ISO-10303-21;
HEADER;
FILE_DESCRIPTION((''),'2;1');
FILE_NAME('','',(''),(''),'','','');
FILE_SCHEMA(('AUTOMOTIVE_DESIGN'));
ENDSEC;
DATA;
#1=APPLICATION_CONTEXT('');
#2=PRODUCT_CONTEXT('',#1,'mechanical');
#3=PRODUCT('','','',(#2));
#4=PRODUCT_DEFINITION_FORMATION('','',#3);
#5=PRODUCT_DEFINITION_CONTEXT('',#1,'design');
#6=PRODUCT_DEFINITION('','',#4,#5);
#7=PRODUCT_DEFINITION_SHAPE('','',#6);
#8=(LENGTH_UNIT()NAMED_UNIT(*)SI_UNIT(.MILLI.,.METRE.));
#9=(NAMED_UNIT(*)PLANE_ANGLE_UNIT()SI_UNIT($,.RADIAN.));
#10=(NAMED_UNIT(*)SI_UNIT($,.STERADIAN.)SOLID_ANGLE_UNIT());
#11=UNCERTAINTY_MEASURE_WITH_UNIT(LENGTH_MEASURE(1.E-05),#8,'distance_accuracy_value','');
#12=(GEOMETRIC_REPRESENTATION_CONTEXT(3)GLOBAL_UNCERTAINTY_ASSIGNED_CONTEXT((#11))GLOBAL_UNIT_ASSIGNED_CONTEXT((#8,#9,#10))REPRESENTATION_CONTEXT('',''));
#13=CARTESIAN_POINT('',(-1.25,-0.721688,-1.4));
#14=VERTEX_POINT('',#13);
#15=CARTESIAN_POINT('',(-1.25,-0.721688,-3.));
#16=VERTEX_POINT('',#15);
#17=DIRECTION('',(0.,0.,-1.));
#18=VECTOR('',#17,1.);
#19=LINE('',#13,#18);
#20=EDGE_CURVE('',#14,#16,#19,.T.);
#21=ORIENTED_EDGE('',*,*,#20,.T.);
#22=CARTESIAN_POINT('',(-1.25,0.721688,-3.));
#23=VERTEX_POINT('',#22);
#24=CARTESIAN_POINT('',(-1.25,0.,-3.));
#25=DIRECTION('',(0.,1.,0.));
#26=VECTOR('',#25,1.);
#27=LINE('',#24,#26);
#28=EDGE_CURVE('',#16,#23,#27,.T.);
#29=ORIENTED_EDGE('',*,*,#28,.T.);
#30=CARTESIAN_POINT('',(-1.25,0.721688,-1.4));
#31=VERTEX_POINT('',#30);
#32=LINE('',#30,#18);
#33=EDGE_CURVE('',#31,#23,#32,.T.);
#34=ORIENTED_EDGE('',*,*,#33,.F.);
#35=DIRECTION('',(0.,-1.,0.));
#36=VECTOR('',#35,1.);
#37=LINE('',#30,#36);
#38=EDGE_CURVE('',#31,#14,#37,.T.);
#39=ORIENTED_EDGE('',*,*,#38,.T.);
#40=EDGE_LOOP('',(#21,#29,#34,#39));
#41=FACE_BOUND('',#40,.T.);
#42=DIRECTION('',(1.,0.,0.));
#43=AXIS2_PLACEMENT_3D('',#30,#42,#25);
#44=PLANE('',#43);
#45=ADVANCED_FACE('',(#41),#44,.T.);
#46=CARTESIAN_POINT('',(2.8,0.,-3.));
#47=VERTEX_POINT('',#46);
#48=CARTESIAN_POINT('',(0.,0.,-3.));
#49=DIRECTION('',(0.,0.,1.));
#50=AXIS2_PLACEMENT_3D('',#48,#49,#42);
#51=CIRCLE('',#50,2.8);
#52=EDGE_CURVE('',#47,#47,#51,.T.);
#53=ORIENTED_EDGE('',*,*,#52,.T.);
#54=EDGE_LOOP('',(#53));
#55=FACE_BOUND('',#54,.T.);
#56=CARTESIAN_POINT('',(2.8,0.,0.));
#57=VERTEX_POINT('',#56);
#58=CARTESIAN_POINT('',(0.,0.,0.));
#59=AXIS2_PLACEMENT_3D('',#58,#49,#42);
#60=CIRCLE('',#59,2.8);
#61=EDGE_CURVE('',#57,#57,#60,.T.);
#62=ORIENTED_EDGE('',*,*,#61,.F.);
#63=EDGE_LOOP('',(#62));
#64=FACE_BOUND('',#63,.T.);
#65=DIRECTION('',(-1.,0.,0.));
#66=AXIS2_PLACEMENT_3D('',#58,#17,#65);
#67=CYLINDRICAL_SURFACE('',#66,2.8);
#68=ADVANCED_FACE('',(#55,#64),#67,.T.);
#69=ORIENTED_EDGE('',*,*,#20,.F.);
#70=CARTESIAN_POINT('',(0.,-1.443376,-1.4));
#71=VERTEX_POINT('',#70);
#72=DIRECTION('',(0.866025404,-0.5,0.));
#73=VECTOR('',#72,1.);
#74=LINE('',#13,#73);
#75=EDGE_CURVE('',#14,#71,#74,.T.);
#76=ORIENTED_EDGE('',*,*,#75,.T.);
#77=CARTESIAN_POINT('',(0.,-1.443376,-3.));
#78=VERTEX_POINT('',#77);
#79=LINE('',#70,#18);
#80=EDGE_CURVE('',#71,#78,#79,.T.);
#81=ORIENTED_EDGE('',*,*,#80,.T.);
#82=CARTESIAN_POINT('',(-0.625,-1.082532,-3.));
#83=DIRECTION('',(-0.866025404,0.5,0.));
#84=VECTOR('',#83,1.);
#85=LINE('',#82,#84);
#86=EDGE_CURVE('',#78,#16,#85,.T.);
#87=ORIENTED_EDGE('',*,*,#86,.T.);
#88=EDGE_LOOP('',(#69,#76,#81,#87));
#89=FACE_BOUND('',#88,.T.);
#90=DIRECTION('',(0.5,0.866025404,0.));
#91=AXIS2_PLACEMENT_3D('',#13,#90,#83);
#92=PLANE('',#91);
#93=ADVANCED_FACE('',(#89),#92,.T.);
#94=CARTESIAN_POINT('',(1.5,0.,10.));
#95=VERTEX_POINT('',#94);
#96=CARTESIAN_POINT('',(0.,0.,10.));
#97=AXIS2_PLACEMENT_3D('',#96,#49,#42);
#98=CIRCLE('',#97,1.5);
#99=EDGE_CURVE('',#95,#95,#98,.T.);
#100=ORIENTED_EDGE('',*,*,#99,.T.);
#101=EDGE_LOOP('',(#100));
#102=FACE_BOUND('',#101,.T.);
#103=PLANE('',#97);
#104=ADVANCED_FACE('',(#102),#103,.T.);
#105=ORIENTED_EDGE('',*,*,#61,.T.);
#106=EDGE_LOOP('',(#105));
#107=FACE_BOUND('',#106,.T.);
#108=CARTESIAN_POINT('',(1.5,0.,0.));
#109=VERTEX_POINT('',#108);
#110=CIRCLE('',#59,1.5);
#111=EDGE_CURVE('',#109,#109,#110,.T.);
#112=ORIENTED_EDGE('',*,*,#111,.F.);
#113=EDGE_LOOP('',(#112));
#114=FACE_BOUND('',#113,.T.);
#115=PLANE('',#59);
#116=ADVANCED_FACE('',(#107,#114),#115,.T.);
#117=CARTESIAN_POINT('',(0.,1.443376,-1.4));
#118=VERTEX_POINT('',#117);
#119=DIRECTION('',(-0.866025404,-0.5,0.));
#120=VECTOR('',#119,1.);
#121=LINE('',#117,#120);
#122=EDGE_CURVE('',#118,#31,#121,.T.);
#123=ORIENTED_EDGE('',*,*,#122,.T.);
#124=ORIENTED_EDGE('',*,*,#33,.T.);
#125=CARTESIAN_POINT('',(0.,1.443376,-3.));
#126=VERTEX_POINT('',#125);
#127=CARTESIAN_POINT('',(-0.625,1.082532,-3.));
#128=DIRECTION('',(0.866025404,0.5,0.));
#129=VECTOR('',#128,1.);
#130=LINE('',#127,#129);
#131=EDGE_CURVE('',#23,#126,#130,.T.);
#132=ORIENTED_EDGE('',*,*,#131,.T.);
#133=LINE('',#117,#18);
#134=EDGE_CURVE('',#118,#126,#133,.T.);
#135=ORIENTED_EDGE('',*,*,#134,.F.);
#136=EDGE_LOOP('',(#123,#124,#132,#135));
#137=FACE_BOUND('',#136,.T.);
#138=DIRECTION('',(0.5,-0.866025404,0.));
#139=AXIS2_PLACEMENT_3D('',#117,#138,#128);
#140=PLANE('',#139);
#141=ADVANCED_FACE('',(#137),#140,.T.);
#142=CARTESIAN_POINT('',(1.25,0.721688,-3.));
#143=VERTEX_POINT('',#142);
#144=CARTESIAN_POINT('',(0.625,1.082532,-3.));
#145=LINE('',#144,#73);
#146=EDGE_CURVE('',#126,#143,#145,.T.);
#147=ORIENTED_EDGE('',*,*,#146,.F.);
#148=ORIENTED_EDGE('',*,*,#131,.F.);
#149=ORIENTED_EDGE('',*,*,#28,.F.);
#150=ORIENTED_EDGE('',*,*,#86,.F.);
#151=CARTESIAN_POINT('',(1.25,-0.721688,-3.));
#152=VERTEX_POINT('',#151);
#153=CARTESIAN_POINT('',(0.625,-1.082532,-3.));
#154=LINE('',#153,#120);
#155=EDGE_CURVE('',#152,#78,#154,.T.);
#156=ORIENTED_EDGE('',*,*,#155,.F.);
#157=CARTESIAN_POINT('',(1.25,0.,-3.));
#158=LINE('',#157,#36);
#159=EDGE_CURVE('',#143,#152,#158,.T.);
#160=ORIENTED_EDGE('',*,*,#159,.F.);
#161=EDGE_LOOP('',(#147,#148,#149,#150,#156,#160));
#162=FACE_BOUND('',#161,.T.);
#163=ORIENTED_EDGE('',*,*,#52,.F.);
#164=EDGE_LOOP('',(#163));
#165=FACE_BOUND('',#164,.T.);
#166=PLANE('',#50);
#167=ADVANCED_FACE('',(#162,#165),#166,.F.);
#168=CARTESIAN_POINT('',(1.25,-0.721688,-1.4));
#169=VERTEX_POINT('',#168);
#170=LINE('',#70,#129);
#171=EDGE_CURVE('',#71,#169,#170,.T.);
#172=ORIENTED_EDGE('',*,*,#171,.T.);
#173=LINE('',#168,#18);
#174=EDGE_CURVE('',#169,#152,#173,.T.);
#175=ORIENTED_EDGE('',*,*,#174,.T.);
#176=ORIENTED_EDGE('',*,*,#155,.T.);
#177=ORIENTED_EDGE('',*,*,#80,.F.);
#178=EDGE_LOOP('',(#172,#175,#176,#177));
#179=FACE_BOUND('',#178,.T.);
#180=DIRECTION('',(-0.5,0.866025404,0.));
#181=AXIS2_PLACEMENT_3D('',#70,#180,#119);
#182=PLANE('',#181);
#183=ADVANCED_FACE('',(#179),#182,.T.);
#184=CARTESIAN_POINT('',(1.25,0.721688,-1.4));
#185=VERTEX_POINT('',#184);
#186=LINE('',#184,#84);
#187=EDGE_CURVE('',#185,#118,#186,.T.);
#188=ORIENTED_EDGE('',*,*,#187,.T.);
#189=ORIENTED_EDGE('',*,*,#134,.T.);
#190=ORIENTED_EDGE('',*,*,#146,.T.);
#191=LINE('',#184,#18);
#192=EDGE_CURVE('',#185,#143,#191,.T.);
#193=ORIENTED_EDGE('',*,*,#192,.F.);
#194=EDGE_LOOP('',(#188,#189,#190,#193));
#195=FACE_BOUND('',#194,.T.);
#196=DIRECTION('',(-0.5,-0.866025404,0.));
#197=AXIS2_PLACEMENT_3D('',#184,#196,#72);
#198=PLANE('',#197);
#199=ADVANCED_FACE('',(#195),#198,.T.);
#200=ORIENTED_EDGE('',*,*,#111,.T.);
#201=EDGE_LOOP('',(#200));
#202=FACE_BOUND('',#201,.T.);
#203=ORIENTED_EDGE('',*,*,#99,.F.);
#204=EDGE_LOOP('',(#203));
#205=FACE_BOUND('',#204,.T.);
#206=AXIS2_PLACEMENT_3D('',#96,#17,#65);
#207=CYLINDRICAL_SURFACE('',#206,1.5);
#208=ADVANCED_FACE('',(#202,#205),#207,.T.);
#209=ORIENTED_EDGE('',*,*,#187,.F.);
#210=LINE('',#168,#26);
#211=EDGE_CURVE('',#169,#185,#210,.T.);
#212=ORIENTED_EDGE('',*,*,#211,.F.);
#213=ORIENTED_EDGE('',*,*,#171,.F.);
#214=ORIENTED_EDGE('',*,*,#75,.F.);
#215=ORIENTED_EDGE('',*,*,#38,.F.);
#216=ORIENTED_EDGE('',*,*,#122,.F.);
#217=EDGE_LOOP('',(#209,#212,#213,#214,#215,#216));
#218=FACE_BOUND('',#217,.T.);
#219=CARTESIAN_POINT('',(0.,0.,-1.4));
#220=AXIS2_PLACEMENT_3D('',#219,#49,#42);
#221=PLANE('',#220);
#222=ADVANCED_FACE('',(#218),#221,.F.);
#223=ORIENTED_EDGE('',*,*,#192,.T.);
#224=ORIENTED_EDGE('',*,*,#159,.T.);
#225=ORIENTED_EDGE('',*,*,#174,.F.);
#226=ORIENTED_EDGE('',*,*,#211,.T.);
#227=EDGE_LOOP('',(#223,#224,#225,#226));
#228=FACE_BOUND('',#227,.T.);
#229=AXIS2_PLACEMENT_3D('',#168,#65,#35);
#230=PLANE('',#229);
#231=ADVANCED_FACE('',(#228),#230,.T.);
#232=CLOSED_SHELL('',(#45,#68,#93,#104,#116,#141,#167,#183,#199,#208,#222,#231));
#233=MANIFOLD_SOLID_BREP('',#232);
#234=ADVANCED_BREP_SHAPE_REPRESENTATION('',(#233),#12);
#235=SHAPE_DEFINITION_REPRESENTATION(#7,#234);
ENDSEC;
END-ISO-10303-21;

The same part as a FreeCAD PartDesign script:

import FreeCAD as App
import Part
import Sketcher
from FreeCAD import Vector
Q = App.Units.Quantity

doc = App.newDocument("Part")
body = doc.addObject("PartDesign::Body", "Body")

sketch1 = body.newObject("Sketcher::SketchObject", "Sketch")
sketch1.AttachmentSupport = (doc.getObject("XY_Plane"), [""])
sketch1.MapMode = "FlatFace"
sketch1.AttachmentOffset = App.Placement(Vector(0, 0, -3), App.Rotation())
sketch1.addGeometry(Part.Circle(Vector(0, 0, 0), Vector(0, 0, 1), 2.8), False)
sketch1.addConstraint([
    Sketcher.Constraint("Coincident", 0, 3, -1, 1),
    Sketcher.Constraint("Diameter", 0, Q("5.6 mm")),
])
pad1 = body.newObject("PartDesign::Pad", "Pad")
pad1.Profile = sketch1
pad1.Length = 3

sketch2 = body.newObject("Sketcher::SketchObject", "Sketch001")
sketch2.AttachmentSupport = (doc.getObject("XY_Plane"), [""])
sketch2.MapMode = "FlatFace"
sketch2.addGeometry(Part.Circle(Vector(0, 0, 0), Vector(0, 0, 1), 1.5), False)
sketch2.addConstraint([
    Sketcher.Constraint("Coincident", 0, 3, -1, 1),
    Sketcher.Constraint("Diameter", 0, Q("3 mm")),
])
pad2 = body.newObject("PartDesign::Pad", "Pad001")
pad2.Profile = sketch2
pad2.Length = 10

sketch3 = body.newObject("Sketcher::SketchObject", "Sketch002")
sketch3.AttachmentSupport = (doc.getObject("XY_Plane"), [""])
sketch3.MapMode = "FlatFace"
sketch3.AttachmentOffset = App.Placement(Vector(0, 0, -3.2), App.Rotation())
sketch3.addGeometry([
    Part.LineSegment(Vector(1.2, 0.7, 0), Vector(0, 1.4, 0)),
    Part.LineSegment(Vector(0, 1.4, 0), Vector(-1.2, 0.7, 0)),
    Part.LineSegment(Vector(-1.2, 0.7, 0), Vector(-1.2, -0.7, 0)),
    Part.LineSegment(Vector(-1.2, -0.7, 0), Vector(0, -1.4, 0)),
    Part.LineSegment(Vector(0, -1.4, 0), Vector(1.2, -0.7, 0)),
    Part.LineSegment(Vector(1.2, -0.7, 0), Vector(1.2, 0.7, 0)),
], False)
sketch3.addConstraint([
    Sketcher.Constraint("Coincident", 0, 2, 1, 1),
    Sketcher.Constraint("Coincident", 1, 2, 2, 1),
    Sketcher.Constraint("Coincident", 2, 2, 3, 1),
    Sketcher.Constraint("Coincident", 3, 2, 4, 1),
    Sketcher.Constraint("Coincident", 4, 2, 5, 1),
    Sketcher.Constraint("Coincident", 5, 2, 0, 1),
    Sketcher.Constraint("Vertical", 2),
    Sketcher.Constraint("Vertical", 5),
    Sketcher.Constraint("Symmetric", 0, 2, 3, 2, -1, 1),
    Sketcher.Constraint("Symmetric", 1, 2, 4, 2, -1, 1),
    Sketcher.Constraint("PointOnObject", 0, 2, -2),
    Sketcher.Constraint("Parallel", 0, 3),
    Sketcher.Constraint("Horizontal", 2, 2, 4, 2),
    Sketcher.Constraint("Angle", 0, Q("150 deg")),
    Sketcher.Constraint("DistanceX", 2, 2, 4, 2, Q("2.5 mm")),
    Sketcher.Constraint("DistanceY", 2, 2, 2, 1, Q("1.443376 mm")),
])
pocket1 = body.newObject("PartDesign::Pocket", "Pocket")
pocket1.Profile = sketch3
pocket1.Length = 1.8
pocket1.Reversed = True

doc.recompute()
